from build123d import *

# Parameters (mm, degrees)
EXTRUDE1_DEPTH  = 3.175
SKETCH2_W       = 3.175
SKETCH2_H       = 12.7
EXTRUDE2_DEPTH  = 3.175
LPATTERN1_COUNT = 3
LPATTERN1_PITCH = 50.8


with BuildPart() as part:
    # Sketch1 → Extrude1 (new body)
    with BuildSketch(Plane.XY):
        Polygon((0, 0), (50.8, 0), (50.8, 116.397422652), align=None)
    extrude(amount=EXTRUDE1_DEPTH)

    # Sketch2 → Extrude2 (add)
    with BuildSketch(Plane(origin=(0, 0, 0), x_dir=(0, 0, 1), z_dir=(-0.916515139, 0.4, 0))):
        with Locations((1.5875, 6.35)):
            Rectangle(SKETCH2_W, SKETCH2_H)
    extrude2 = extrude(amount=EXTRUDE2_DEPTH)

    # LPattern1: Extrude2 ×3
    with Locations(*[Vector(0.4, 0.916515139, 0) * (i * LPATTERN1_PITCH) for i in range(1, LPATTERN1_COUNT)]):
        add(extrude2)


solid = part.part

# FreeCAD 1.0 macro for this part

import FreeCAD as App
import Part
import Sketcher
from FreeCAD import Vector
Q = App.Units.Quantity

doc = App.newDocument("Part")
body = doc.addObject("PartDesign::Body", "Body")

# Sketch on XY plane
sketch1 = doc.addObject("Sketcher::SketchObject", "Sketch")
body.addObject(sketch1)
sketch1.AttachmentSupport = (doc.XY_Plane, [""])
sketch1.MapMode = "FlatFace"
sketch1.addGeometry(Part.LineSegment(Vector(0, 0, 0), Vector(51, 0, 0)), False)
sketch1.addGeometry(Part.LineSegment(Vector(51, 0, 0), Vector(51, 116, 0)), False)
sketch1.addGeometry(Part.LineSegment(Vector(51, 116, 0), Vector(0, 0, 0)), False)
sketch1.addConstraint(Sketcher.Constraint("Coincident", 0, 2, 1, 1))
sketch1.addConstraint(Sketcher.Constraint("Coincident", 1, 2, 2, 1))
sketch1.addConstraint(Sketcher.Constraint("Coincident", 2, 2, 0, 1))
sketch1.addConstraint(Sketcher.Constraint("Horizontal", 0))
sketch1.addConstraint(Sketcher.Constraint("Vertical", 1))
sketch1.addConstraint(Sketcher.Constraint("Coincident", 2, 2, -1, 1))
sketch1.addConstraint(Sketcher.Constraint("DistanceX", 0, 1, 0, 2, Q("2 in")))
sketch1.addConstraint(Sketcher.Constraint("Distance", 2, Q("5 in")))
pad1 = doc.addObject("PartDesign::Pad", "Pad")
body.addObject(pad1)
pad1.Profile = sketch1
pad1.Length = Q("0.125 in")

# Sketch on an angled plane
sketch2 = doc.addObject("Sketcher::SketchObject", "Sketch001")
body.addObject(sketch2)
sketch2.Placement = App.Placement(Vector(0, 0, 0), App.Rotation(Vector(0, 0, 1), Vector(0.4, 0.916515139, 0), Vector(-0.916515139, 0.4, 0), "ZXY"))
sketch2.addGeometry(Part.LineSegment(Vector(0, 12.7, 0), Vector(0, 0, 0)), False)
sketch2.addGeometry(Part.LineSegment(Vector(0, 0, 0), Vector(3.2, 0, 0)), False)
sketch2.addGeometry(Part.LineSegment(Vector(3.2, 0, 0), Vector(3.2, 12.7, 0)), False)
sketch2.addGeometry(Part.LineSegment(Vector(3.2, 12.7, 0), Vector(0, 12.7, 0)), False)
sketch2.addConstraint(Sketcher.Constraint("Coincident", 0, 2, 1, 1))
sketch2.addConstraint(Sketcher.Constraint("Coincident", 1, 2, 2, 1))
sketch2.addConstraint(Sketcher.Constraint("Coincident", 2, 2, 3, 1))
sketch2.addConstraint(Sketcher.Constraint("Coincident", 3, 2, 0, 1))
sketch2.addConstraint(Sketcher.Constraint("Vertical", 0))
sketch2.addConstraint(Sketcher.Constraint("Horizontal", 1))
sketch2.addConstraint(Sketcher.Constraint("Vertical", 2))
sketch2.addConstraint(Sketcher.Constraint("Horizontal", 3))
sketch2.addConstraint(Sketcher.Constraint("Coincident", 0, 2, -1, 1))
sketch2.addConstraint(Sketcher.Constraint("DistanceY", 0, 2, 0, 1, Q("0.5 in")))
sketch2.addConstraint(Sketcher.Constraint("DistanceX", 1, 1, 1, 2, Q("0.125 in")))
pad2 = doc.addObject("PartDesign::Pad", "Pad001")
body.addObject(pad2)
pad2.Profile = sketch2
pad2.Length = Q("0.125 in")
doc.recompute()

datumline = doc.addObject("PartDesign::Line", "DatumLine")
body.addObject(datumline)
datumline.Placement = App.Placement(Vector(0, 0, 0), App.Rotation(Vector(0, 0, 1), Vector(0.4, 0.916515139, 0)))
linearpattern = doc.addObject("PartDesign::LinearPattern", "LinearPattern")
body.addObject(linearpattern)
linearpattern.Originals = [pad2]
linearpattern.Direction = (datumline, [""])
linearpattern.Mode = "offset"
linearpattern.Offset = Q("2 in")
linearpattern.Occurrences = 3
body.Tip = linearpattern

doc.recompute()
